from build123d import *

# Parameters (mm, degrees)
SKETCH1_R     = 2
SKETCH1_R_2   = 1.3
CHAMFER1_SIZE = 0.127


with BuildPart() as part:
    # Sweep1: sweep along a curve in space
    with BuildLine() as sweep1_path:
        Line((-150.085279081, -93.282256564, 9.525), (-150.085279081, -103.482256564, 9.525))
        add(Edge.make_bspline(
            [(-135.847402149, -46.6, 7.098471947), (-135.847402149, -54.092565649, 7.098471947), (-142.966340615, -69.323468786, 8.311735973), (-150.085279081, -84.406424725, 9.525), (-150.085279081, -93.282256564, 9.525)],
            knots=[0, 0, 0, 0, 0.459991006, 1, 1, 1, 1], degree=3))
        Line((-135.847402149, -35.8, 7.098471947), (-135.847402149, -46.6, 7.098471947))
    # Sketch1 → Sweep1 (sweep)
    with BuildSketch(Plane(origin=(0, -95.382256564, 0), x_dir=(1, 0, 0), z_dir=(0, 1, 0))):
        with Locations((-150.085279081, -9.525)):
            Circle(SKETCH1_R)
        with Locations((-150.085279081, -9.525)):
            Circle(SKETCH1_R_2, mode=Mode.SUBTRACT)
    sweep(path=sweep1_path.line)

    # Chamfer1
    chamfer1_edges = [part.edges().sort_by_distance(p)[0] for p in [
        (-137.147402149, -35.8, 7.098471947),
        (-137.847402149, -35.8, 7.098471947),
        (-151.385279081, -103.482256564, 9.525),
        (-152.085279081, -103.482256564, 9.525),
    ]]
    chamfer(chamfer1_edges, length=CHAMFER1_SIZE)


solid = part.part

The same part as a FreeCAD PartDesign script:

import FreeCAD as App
import Part
import Sketcher


def edges_at(feature, points):
    """Names of the edges that pass closest to the given points."""
    edges = feature.Shape.Edges
    near = lambda p: min(range(len(edges)), key=lambda i: edges[i].distToShape(Part.Vertex(*p))[0])
    return sorted({f"Edge{near(p) + 1}" for p in points})

doc = App.newDocument("Part")
params = doc.addObject("Spreadsheet::Sheet", "Params")
for row, (alias, value) in enumerate([
    ("sketch1_diameter", "4 mm"),
    ("sketch1_diameter2", "2.6 mm"),
    ("sketch2_height", "10.8 mm"),
    ("sketch2_height2", "10.2 mm"),
    ("chamfer_size", "0.127 mm"),
], start=1):
    params.set(f"A{row}", alias)
    params.set(f"B{row}", "=" + value)
    params.setAlias(f"B{row}", alias)

body = doc.addObject("PartDesign::Body", "Body")

sketch1 = body.newObject("Sketcher::SketchObject", "Sketch")
sketch1.AttachmentSupport = (doc.getObject("XZ_Plane"), [""])
sketch1.MapMode = "FlatFace"
sketch1.AttachmentOffset = App.Placement(App.Vector(0, 0, 95.382257), App.Rotation())
sketch1.addGeometry([
    Part.Circle(App.Vector(-150.1, 9.5, 0), App.Vector(0, 0, 1), 2),
    Part.Circle(App.Vector(-150.1, 9.5, 0), App.Vector(0, 0, 1), 1.3),
], False)
sketch1.addConstraint([
    Sketcher.Constraint("Coincident", 1, 3, 0, 3),
    Sketcher.Constraint("Diameter", 0, 4.0),
    Sketcher.Constraint("Diameter", 1, 2.6),
    Sketcher.Constraint("DistanceY", -1, 1, 0, 3, 9.525),
    Sketcher.Constraint("DistanceX", 0, 3, -1, 1, 150.085279),
])
sketch1.setExpression("Constraints[1]", "Params.sketch1_diameter")
sketch1.setExpression("Constraints[2]", "Params.sketch1_diameter2")

sketch2 = body.newObject("Sketcher::SketchObject", "Sketch001")
sketch2.Placement = App.Placement(App.Vector(-2.658766, 0, -15.600556), App.Rotation(App.Vector(-0.985786106, 0, 0.16800522), App.Vector(0, 1.000000001, 0), App.Vector(-0.16800522, 0, -0.985786106), "ZXY"))
sketch2.addGeometry([
    Part.LineSegment(App.Vector(135.109062, -35.8, 0), App.Vector(135.109062, -46.6, 0)),
    Part.BSplineCurve([App.Vector(135.109062, -46.6, 0), App.Vector(135.109062, -54.092566, 0), App.Vector(142.330647, -69.323469, 0), App.Vector(149.552233, -84.406425, 0), App.Vector(149.552233, -93.282257, 0)], [4, 1, 4], [0, 0.459991006, 1], False, 3, [1, 1, 1, 1, 1], False),
    Part.LineSegment(App.Vector(149.552233, -93.282257, 0), App.Vector(149.552233, -103.482257, 0)),
], False)
sketch2.addConstraint([
    Sketcher.Constraint("Block", 1),
    Sketcher.Constraint("Coincident", 0, 2, 1, 1),
    Sketcher.Constraint("Coincident", 1, 2, 2, 1),
    Sketcher.Constraint("Vertical", 0),
    Sketcher.Constraint("Vertical", 2),
    Sketcher.Constraint("DistanceY", 0, 2, 0, 1, 10.8),
    Sketcher.Constraint("DistanceY", 2, 2, 2, 1, 10.2),
])
sketch2.setExpression("Constraints[5]", "Params.sketch2_height")
sketch2.setExpression("Constraints[6]", "Params.sketch2_height2")
doc.recompute()

additivepipe = body.newObject("PartDesign::AdditivePipe", "AdditivePipe")
additivepipe.Profile = sketch1
additivepipe.Spine = (sketch2, ["Edge1", "Edge2", "Edge3"])
doc.recompute()

chamfer = body.newObject("PartDesign::Chamfer", "Chamfer")
chamfer.Base = (additivepipe, edges_at(additivepipe, [
    (-137.147, -35.8, 7.098),
    (-137.847, -35.8, 7.098),
    (-151.385, -103.482, 9.525),
    (-152.085, -103.482, 9.525),
]))
chamfer.setExpression("Size", "Params.chamfer_size")

doc.recompute()
